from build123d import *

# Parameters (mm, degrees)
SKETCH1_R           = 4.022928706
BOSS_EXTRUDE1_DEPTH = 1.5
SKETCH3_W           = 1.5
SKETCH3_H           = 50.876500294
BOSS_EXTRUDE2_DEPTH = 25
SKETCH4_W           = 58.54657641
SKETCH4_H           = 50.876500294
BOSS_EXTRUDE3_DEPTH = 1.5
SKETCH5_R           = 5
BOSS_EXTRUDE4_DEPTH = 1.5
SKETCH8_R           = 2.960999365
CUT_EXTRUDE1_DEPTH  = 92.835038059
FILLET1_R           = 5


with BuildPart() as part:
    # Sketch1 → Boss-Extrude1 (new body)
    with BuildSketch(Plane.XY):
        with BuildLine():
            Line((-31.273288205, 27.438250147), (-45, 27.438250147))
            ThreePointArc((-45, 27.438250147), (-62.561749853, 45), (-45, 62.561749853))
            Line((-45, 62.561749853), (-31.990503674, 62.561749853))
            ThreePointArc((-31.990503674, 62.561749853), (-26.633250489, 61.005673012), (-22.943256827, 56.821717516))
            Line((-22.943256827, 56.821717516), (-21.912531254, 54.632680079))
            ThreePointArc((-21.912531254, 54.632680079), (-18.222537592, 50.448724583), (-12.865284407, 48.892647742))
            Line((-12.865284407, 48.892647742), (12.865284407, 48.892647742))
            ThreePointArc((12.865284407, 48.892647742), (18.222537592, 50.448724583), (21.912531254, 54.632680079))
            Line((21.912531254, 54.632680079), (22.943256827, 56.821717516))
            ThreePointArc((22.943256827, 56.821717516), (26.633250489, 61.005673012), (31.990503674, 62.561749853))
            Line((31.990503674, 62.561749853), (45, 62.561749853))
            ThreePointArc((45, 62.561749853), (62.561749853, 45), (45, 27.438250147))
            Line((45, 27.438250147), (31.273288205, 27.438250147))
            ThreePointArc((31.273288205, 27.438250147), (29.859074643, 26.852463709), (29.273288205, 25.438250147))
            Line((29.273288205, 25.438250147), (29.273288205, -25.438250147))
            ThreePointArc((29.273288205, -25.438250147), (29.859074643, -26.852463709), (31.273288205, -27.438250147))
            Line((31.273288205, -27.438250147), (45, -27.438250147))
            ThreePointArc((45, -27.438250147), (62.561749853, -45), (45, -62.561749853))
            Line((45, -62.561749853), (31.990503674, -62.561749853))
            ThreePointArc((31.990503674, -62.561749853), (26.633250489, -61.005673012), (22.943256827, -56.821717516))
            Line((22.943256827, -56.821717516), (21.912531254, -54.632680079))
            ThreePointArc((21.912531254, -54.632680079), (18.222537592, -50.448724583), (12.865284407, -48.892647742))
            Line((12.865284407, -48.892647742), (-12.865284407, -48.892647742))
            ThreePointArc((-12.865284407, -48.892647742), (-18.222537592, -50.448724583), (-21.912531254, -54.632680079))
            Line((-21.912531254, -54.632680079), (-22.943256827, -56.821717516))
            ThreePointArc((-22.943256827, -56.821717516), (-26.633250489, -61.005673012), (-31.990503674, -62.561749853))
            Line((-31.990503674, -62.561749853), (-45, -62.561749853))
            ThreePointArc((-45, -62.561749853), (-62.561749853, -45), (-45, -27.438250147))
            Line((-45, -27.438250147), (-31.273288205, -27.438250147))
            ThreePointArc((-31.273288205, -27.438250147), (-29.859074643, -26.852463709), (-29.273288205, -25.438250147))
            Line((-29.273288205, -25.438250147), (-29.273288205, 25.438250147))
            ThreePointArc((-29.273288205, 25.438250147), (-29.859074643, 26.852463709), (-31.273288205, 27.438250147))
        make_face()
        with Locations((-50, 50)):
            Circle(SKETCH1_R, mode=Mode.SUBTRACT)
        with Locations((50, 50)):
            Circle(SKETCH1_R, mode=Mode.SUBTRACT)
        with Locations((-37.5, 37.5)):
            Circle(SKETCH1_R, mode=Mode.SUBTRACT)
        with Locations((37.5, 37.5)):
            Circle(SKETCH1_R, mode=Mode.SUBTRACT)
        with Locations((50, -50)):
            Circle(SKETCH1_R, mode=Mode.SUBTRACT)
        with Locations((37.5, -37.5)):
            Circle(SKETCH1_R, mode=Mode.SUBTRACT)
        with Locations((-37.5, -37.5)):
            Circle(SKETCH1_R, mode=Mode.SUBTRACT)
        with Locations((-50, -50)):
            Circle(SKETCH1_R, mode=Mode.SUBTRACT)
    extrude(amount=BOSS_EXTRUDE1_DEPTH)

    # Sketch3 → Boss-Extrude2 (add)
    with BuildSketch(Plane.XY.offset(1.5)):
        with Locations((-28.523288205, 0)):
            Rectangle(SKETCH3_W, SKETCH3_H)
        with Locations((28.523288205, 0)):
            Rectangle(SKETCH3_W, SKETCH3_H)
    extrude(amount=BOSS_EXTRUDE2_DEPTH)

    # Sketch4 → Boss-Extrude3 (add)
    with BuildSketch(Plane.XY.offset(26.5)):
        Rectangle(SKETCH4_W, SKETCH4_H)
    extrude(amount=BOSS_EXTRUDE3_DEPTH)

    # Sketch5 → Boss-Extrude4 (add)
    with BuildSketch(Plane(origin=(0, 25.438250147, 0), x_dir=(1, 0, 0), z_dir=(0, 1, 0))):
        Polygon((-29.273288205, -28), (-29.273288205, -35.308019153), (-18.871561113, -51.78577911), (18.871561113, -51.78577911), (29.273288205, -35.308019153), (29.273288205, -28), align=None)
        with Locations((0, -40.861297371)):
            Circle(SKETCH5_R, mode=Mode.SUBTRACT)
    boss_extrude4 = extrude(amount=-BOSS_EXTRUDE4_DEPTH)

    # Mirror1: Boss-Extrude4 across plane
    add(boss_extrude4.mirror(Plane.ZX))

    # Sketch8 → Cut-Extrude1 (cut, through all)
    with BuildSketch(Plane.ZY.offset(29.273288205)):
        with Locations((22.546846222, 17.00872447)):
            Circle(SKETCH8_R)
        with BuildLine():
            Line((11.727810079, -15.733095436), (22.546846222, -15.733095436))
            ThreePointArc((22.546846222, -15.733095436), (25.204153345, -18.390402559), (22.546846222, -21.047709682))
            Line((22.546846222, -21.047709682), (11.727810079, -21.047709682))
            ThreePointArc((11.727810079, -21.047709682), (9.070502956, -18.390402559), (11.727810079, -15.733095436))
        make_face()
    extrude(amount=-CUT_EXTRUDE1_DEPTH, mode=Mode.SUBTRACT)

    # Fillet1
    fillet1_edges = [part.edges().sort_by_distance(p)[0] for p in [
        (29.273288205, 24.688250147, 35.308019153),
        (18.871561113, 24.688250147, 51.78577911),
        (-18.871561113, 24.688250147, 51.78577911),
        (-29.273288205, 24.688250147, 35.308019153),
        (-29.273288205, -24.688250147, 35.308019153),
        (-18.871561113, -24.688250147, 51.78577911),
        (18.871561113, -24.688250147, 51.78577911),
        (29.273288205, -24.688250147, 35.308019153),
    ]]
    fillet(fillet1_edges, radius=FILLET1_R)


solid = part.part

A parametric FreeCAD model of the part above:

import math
import FreeCAD as App
import Part
import Sketcher
from FreeCAD import Vector
Q = App.Units.Quantity


def edges_at(feature, points):
    """Names of the edges that pass closest to the given points."""
    edges = feature.Shape.Edges
    near = lambda p: min(range(len(edges)), key=lambda i: edges[i].distToShape(Part.Vertex(*p))[0])
    return sorted({f"Edge{near(p) + 1}" for p in points})


def add_polygon(sketch, points):
    """Adds a closed chain of lines whose ends are joined by coincident constraints."""
    first, n = sketch.GeometryCount, len(points)
    for a, b in zip(points, points[1:] + points[:1]):
        sketch.addGeometry(Part.LineSegment(App.Vector(*a, 0), App.Vector(*b, 0)), False)
    for i in range(n):
        sketch.addConstraint(Sketcher.Constraint("Coincident", first + i, 2, first + (i + 1) % n, 1))

doc = App.newDocument("Part")
body = doc.addObject("PartDesign::Body", "Body")

sketch1 = doc.addObject("Sketcher::SketchObject", "Sketch")
body.addObject(sketch1)
sketch1.AttachmentSupport = (doc.XY_Plane, [""])
sketch1.MapMode = "FlatFace"
sketch1.addGeometry(Part.LineSegment(Vector(-45, 27.4, 0), Vector(-31.3, 27.4, 0)), False)
sketch1.addGeometry(Part.ArcOfCircle(Part.Circle(Vector(-31.3, 25.4, 0), Vector(0, 0, 1), 2), math.radians(0), math.radians(90)), False)
sketch1.addGeometry(Part.LineSegment(Vector(-29.3, 25.4, 0), Vector(-29.3, -25.4, 0)), False)
sketch1.addGeometry(Part.ArcOfCircle(Part.Circle(Vector(-31.3, -25.4, 0), Vector(0, 0, 1), 2), math.radians(-90), math.radians(0)), False)
sketch1.addGeometry(Part.LineSegment(Vector(-31.3, -27.4, 0), Vector(-45, -27.4, 0)), False)
sketch1.addGeometry(Part.ArcOfCircle(Part.Circle(Vector(-45, -45, 0), Vector(0, 0, 1), 17.6), math.radians(90), math.radians(270)), False)
sketch1.addGeometry(Part.LineSegment(Vector(-45, -62.6, 0), Vector(-32, -62.6, 0)), False)
sketch1.addGeometry(Part.ArcOfCircle(Part.Circle(Vector(-32, -52.6, 0), Vector(0, 0, 1), 10), math.radians(-90), math.radians(-25)), False)
sketch1.addGeometry(Part.LineSegment(Vector(-22.9, -56.8, 0), Vector(-21.9, -54.6, 0)), False)
sketch1.addGeometry(Part.ArcOfCircle(Part.Circle(Vector(-12.9, -58.9, 0), Vector(0, 0, 1), 10), math.radians(90), math.radians(155)), False)
sketch1.addGeometry(Part.LineSegment(Vector(-12.9, -48.9, 0), Vector(12.9, -48.9, 0)), False)
sketch1.addGeometry(Part.ArcOfCircle(Part.Circle(Vector(12.9, -58.9, 0), Vector(0, 0, 1), 10), math.radians(25), math.radians(90)), False)
sketch1.addGeometry(Part.LineSegment(Vector(21.9, -54.6, 0), Vector(22.9, -56.8, 0)), False)
sketch1.addGeometry(Part.ArcOfCircle(Part.Circle(Vector(32, -52.6, 0), Vector(0, 0, 1), 10), math.radians(-155), math.radians(-90)), False)
sketch1.addGeometry(Part.LineSegment(Vector(32, -62.6, 0), Vector(45, -62.6, 0)), False)
sketch1.addGeometry(Part.ArcOfCircle(Part.Circle(Vector(45, -45, 0), Vector(0, 0, 1), 17.6), math.radians(-90), math.radians(90)), False)
sketch1.addGeometry(Part.LineSegment(Vector(45, -27.4, 0), Vector(31.3, -27.4, 0)), False)
sketch1.addGeometry(Part.ArcOfCircle(Part.Circle(Vector(31.3, -25.4, 0), Vector(0, 0, 1), 2), math.radians(-180), math.radians(-90)), False)
sketch1.addGeometry(Part.LineSegment(Vector(29.3, -25.4, 0), Vector(29.3, 25.4, 0)), False)
sketch1.addGeometry(Part.ArcOfCircle(Part.Circle(Vector(31.3, 25.4, 0), Vector(0, 0, 1), 2), math.radians(90), math.radians(180)), False)
sketch1.addGeometry(Part.LineSegment(Vector(31.3, 27.4, 0), Vector(45, 27.4, 0)), False)
sketch1.addGeometry(Part.ArcOfCircle(Part.Circle(Vector(45, 45, 0), Vector(0, 0, 1), 17.6), math.radians(-90), math.radians(90)), False)
sketch1.addGeometry(Part.LineSegment(Vector(45, 62.6, 0), Vector(32, 62.6, 0)), False)
sketch1.addGeometry(Part.ArcOfCircle(Part.Circle(Vector(32, 52.6, 0), Vector(0, 0, 1), 10), math.radians(90), math.radians(155)), False)
sketch1.addGeometry(Part.LineSegment(Vector(22.9, 56.8, 0), Vector(21.9, 54.6, 0)), False)
sketch1.addGeometry(Part.ArcOfCircle(Part.Circle(Vector(12.9, 58.9, 0), Vector(0, 0, 1), 10), math.radians(-90), math.radians(-25)), False)
sketch1.addGeometry(Part.LineSegment(Vector(12.9, 48.9, 0), Vector(-12.9, 48.9, 0)), False)
sketch1.addGeometry(Part.ArcOfCircle(Part.Circle(Vector(-12.9, 58.9, 0), Vector(0, 0, 1), 10), math.radians(-155), math.radians(-90)), False)
sketch1.addGeometry(Part.LineSegment(Vector(-21.9, 54.6, 0), Vector(-22.9, 56.8, 0)), False)
sketch1.addGeometry(Part.ArcOfCircle(Part.Circle(Vector(-32, 52.6, 0), Vector(0, 0, 1), 10), math.radians(25), math.radians(90)), False)
sketch1.addGeometry(Part.LineSegment(Vector(-32, 62.6, 0), Vector(-45, 62.6, 0)), False)
sketch1.addGeometry(Part.ArcOfCircle(Part.Circle(Vector(-45, 45, 0), Vector(0, 0, 1), 17.6), math.radians(90), math.radians(270)), False)
sketch1.addGeometry(Part.Circle(Vector(50, -50, 0), Vector(0, 0, 1), 4), False)
sketch1.addGeometry(Part.Circle(Vector(37.5, -37.5, 0), Vector(0, 0, 1), 4), False)
sketch1.addGeometry(Part.Circle(Vector(-50, -50, 0), Vector(0, 0, 1), 4), False)
sketch1.addGeometry(Part.Circle(Vector(-37.5, -37.5, 0), Vector(0, 0, 1), 4), False)
sketch1.addGeometry(Part.Circle(Vector(37.5, 37.5, 0), Vector(0, 0, 1), 4), False)
sketch1.addGeometry(Part.Circle(Vector(50, 50, 0), Vector(0, 0, 1), 4), False)
sketch1.addGeometry(Part.Circle(Vector(-37.5, 37.5, 0), Vector(0, 0, 1), 4), False)
sketch1.addGeometry(Part.Circle(Vector(-50, 50, 0), Vector(0, 0, 1), 4), False)
sketch1.addConstraint(Sketcher.Constraint("Tangent", 0, 2, 1, 2))
sketch1.addConstraint(Sketcher.Constraint("Tangent", 1, 1, 2, 1))
sketch1.addConstraint(Sketcher.Constraint("Tangent", 2, 2, 3, 2))
sketch1.addConstraint(Sketcher.Constraint("Tangent", 3, 1, 4, 1))
sketch1.addConstraint(Sketcher.Constraint("Tangent", 4, 2, 5, 1))
sketch1.addConstraint(Sketcher.Constraint("Tangent", 5, 2, 6, 1))
sketch1.addConstraint(Sketcher.Constraint("Tangent", 6, 2, 7, 1))
sketch1.addConstraint(Sketcher.Constraint("Tangent", 7, 2, 8, 1))
sketch1.addConstraint(Sketcher.Constraint("Tangent", 8, 2, 9, 2))
sketch1.addConstraint(Sketcher.Constraint("Tangent", 9, 1, 10, 1))
sketch1.addConstraint(Sketcher.Constraint("Tangent", 10, 2, 11, 2))
sketch1.addConstraint(Sketcher.Constraint("Tangent", 11, 1, 12, 1))
sketch1.addConstraint(Sketcher.Constraint("Tangent", 12, 2, 13, 1))
sketch1.addConstraint(Sketcher.Constraint("Tangent", 13, 2, 14, 1))
sketch1.addConstraint(Sketcher.Constraint("Tangent", 14, 2, 15, 1))
sketch1.addConstraint(Sketcher.Constraint("Tangent", 15, 2, 16, 1))
sketch1.addConstraint(Sketcher.Constraint("Tangent", 16, 2, 17, 2))
sketch1.addConstraint(Sketcher.Constraint("Tangent", 17, 1, 18, 1))
sketch1.addConstraint(Sketcher.Constraint("Tangent", 18, 2, 19, 2))
sketch1.addConstraint(Sketcher.Constraint("Tangent", 19, 1, 20, 1))
sketch1.addConstraint(Sketcher.Constraint("Tangent", 20, 2, 21, 1))
sketch1.addConstraint(Sketcher.Constraint("Tangent", 21, 2, 22, 1))
sketch1.addConstraint(Sketcher.Constraint("Tangent", 22, 2, 23, 1))
sketch1.addConstraint(Sketcher.Constraint("Tangent", 23, 2, 24, 1))
sketch1.addConstraint(Sketcher.Constraint("Tangent", 24, 2, 25, 2))
sketch1.addConstraint(Sketcher.Constraint("Tangent", 25, 1, 26, 1))
sketch1.addConstraint(Sketcher.Constraint("Tangent", 26, 2, 27, 2))
sketch1.addConstraint(Sketcher.Constraint("Tangent", 27, 1, 28, 1))
sketch1.addConstraint(Sketcher.Constraint("Tangent", 28, 2, 29, 1))
sketch1.addConstraint(Sketcher.Constraint("Tangent", 29, 2, 30, 1))
sketch1.addConstraint(Sketcher.Constraint("Tangent", 30, 2, 31, 1))
sketch1.addConstraint(Sketcher.Constraint("Tangent", 31, 2, 0, 1))
sketch1.addConstraint(Sketcher.Constraint("Horizontal", 0))
sketch1.addConstraint(Sketcher.Constraint("Vertical", 2))
sketch1.addConstraint(Sketcher.Constraint("Horizontal", 4))
sketch1.addConstraint(Sketcher.Constraint("Horizontal", 6))
sketch1.addConstraint(Sketcher.Constraint("Horizontal", 10))
sketch1.addConstraint(Sketcher.Constraint("Horizontal", 14))
sketch1.addConstraint(Sketcher.Constraint("Horizontal", 16))
sketch1.addConstraint(Sketcher.Constraint("Vertical", 18))
sketch1.addConstraint(Sketcher.Constraint("Horizontal", 20))
sketch1.addConstraint(Sketcher.Constraint("Horizontal", 22))
sketch1.addConstraint(Sketcher.Constraint("Horizontal", 26))
sketch1.addConstraint(Sketcher.Constraint("Horizontal", 30))
sketch1.addConstraint(Sketcher.Constraint("Equal", 1, 3))
sketch1.addConstraint(Sketcher.Constraint("Equal", 7, 9))
sketch1.addConstraint(Sketcher.Constraint("Equal", 9, 11))
sketch1.addConstraint(Sketcher.Constraint("Equal", 11, 13))
sketch1.addConstraint(Sketcher.Constraint("Equal", 5, 15))
sketch1.addConstraint(Sketcher.Constraint("Equal", 3, 17))
sketch1.addConstraint(Sketcher.Constraint("Equal", 17, 19))
sketch1.addConstraint(Sketcher.Constraint("Equal", 15, 21))
sketch1.addConstraint(Sketcher.Constraint("Equal", 13, 23))
sketch1.addConstraint(Sketcher.Constraint("Equal", 23, 25))
sketch1.addConstraint(Sketcher.Constraint("Equal", 25, 27))
sketch1.addConstraint(Sketcher.Constraint("Equal", 27, 29))
sketch1.addConstraint(Sketcher.Constraint("Equal", 21, 31))
sketch1.addConstraint(Sketcher.Constraint("Equal", 32, 33))
sketch1.addConstraint(Sketcher.Constraint("Equal", 33, 34))
sketch1.addConstraint(Sketcher.Constraint("Equal", 34, 35))
sketch1.addConstraint(Sketcher.Constraint("Equal", 35, 36))
sketch1.addConstraint(Sketcher.Constraint("Equal", 36, 37))
sketch1.addConstraint(Sketcher.Constraint("Equal", 37, 38))
sketch1.addConstraint(Sketcher.Constraint("Equal", 38, 39))
sketch1.addConstraint(Sketcher.Constraint("Symmetric", 1, 3, 17, 3, -1, 1))
sketch1.addConstraint(Sketcher.Constraint("Symmetric", 5, 3, 21, 3, -1, 1))
sketch1.addConstraint(Sketcher.Constraint("Symmetric", 9, 3, 25, 3, -1, 1))
sketch1.addConstraint(Sketcher.Constraint("Symmetric", 35, 3, 36, 3, -1, 1))
sketch1.addConstraint(Sketcher.Constraint("Symmetric", 34, 3, 37, 3, -1, 1))
sketch1.addConstraint(Sketcher.Constraint("Symmetric", 33, 3, 38, 3, -1, 1))
sketch1.addConstraint(Sketcher.Constraint("Symmetric", 32, 3, 39, 3, -1, 1))
sketch1.addConstraint(Sketcher.Constraint("Symmetric", 11, 1, 27, 1, -1, 1))
sketch1.addConstraint(Sketcher.Constraint("Symmetric", 7, 3, 13, 3, -2))
sketch1.addConstraint(Sketcher.Constraint("Symmetric", 32, 3, 34, 3, -2))
sketch1.addConstraint(Sketcher.Constraint("Symmetric", 33, 3, 35, 3, -2))
sketch1.addConstraint(Sketcher.Constraint("Symmetric", 24, 2, 27, 1, -2))
sketch1.addConstraint(Sketcher.Constraint("Vertical", 15, 3, 21, 3))
sketch1.addConstraint(Sketcher.Constraint("Vertical", 5, 3, 31, 3))
sketch1.addConstraint(Sketcher.Constraint("Radius", 1, Q("2 mm")))
sketch1.addConstraint(Sketcher.Constraint("Radius", 7, Q("10 mm")))
sketch1.addConstraint(Sketcher.Constraint("DistanceX", 5, 3, -1, 1, Q("45 mm")))
sketch1.addConstraint(Sketcher.Constraint("DistanceY", 5, 3, -1, 1, Q("45 mm")))
sketch1.addConstraint(Sketcher.Constraint("DistanceX", -1, 1, 32, 3, Q("50 mm")))
sketch1.addConstraint(Sketcher.Constraint("DistanceY", 32, 3, -1, 1, Q("50 mm")))
sketch1.addConstraint(Sketcher.Constraint("DistanceX", -1, 1, 33, 3, Q("37.5 mm")))
sketch1.addConstraint(Sketcher.Constraint("DistanceY", 33, 3, -1, 1, Q("37.5 mm")))
sketch1.addConstraint(Sketcher.Constraint("Radius", 5, Q("17.56175 mm")))
sketch1.addConstraint(Sketcher.Constraint("Diameter", 32, Q("8.045857 mm")))
sketch1.addConstraint(Sketcher.Constraint("DistanceX", 0, 1, 0, 2, Q("13.726712 mm")))
sketch1.addConstraint(Sketcher.Constraint("DistanceX", 10, 1, 10, 2, Q("25.730569 mm")))
sketch1.addConstraint(Sketcher.Constraint("Distance", 8, Q("2.419562 mm")))
sketch1.addConstraint(Sketcher.Constraint("DistanceX", 6, 1, 6, 2, Q("13.009496 mm")))
pad1 = doc.addObject("PartDesign::Pad", "Pad")
body.addObject(pad1)
pad1.Profile = sketch1
pad1.Length = 1.5

sketch2 = doc.addObject("Sketcher::SketchObject", "Sketch001")
body.addObject(sketch2)
sketch2.AttachmentSupport = (doc.XY_Plane, [""])
sketch2.MapMode = "FlatFace"
sketch2.AttachmentOffset = App.Placement(Vector(0, 0, 1.5), App.Rotation())
add_polygon(sketch2, [(-29.3, 25.4), (-29.3, -25.4), (-27.8, -25.4), (-27.8, 25.4)])
add_polygon(sketch2, [(27.8, 25.4), (27.8, -25.4), (29.3, -25.4), (29.3, 25.4)])
sketch2.addConstraint(Sketcher.Constraint("Vertical", 0))
sketch2.addConstraint(Sketcher.Constraint("Horizontal", 1))
sketch2.addConstraint(Sketcher.Constraint("Vertical", 2))
sketch2.addConstraint(Sketcher.Constraint("Horizontal", 3))
sketch2.addConstraint(Sketcher.Constraint("Vertical", 4))
sketch2.addConstraint(Sketcher.Constraint("Horizontal", 5))
sketch2.addConstraint(Sketcher.Constraint("Vertical", 6))
sketch2.addConstraint(Sketcher.Constraint("Horizontal", 7))
sketch2.addConstraint(Sketcher.Constraint("Symmetric", 2, 2, 4, 2, -1, 1))
sketch2.addConstraint(Sketcher.Constraint("Symmetric", 0, 2, 6, 2, -1, 1))
sketch2.addConstraint(Sketcher.Constraint("Horizontal", 1, 2, 4, 2))
sketch2.addConstraint(Sketcher.Constraint("DistanceX", 1, 1, 1, 2, Q("1.5 mm")))
sketch2.addConstraint(Sketcher.Constraint("DistanceY", 0, 2, 0, 1, Q("50.8765 mm")))
sketch2.addConstraint(Sketcher.Constraint("DistanceX", 0, 2, -1, 1, Q("29.273288 mm")))
pad2 = doc.addObject("PartDesign::Pad", "Pad001")
body.addObject(pad2)
pad2.Profile = sketch2
pad2.Length = 25

sketch3 = doc.addObject("Sketcher::SketchObject", "Sketch002")
body.addObject(sketch3)
sketch3.AttachmentSupport = (doc.XY_Plane, [""])
sketch3.MapMode = "FlatFace"
sketch3.AttachmentOffset = App.Placement(Vector(0, 0, 26.5), App.Rotation())
add_polygon(sketch3, [(-29, 25), (-29, -25), (29, -25), (29, 25)])
sketch3.addConstraint(Sketcher.Constraint("Vertical", 0))
sketch3.addConstraint(Sketcher.Constraint("Horizontal", 1))
sketch3.addConstraint(Sketcher.Constraint("Vertical", 2))
sketch3.addConstraint(Sketcher.Constraint("Horizontal", 3))
sketch3.addConstraint(Sketcher.Constraint("Symmetric", 0, 2, 2, 2, -1, 1))
sketch3.addConstraint(Sketcher.Constraint("DistanceY", 0, 2, 0, 1, Q("50.8765 mm")))
sketch3.addConstraint(Sketcher.Constraint("DistanceX", 1, 1, 1, 2, Q("58.546576 mm")))
pad3 = doc.addObject("PartDesign::Pad", "Pad002")
body.addObject(pad3)
pad3.Profile = sketch3
pad3.Length = 1.5

sketch4 = doc.addObject("Sketcher::SketchObject", "Sketch003")
body.addObject(sketch4)
sketch4.AttachmentSupport = (doc.XZ_Plane, [""])
sketch4.MapMode = "FlatFace"
sketch4.AttachmentOffset = App.Placement(Vector(0, 0, -25.43825), App.Rotation())
add_polygon(sketch4, [(-29, 28), (-29, 35), (-19, 52), (19, 52), (29, 35), (29, 28)])
sketch4.addGeometry(Part.Circle(Vector(0, 41, 0), Vector(0, 0, 1), 5), False)
sketch4.addConstraint(Sketcher.Constraint("Vertical", 0))
sketch4.addConstraint(Sketcher.Constraint("Horizontal", 2))
sketch4.addConstraint(Sketcher.Constraint("Vertical", 4))
sketch4.addConstraint(Sketcher.Constraint("Horizontal", 5))
sketch4.addConstraint(Sketcher.Constraint("Symmetric", 0, 2, 3, 2, -2))
sketch4.addConstraint(Sketcher.Constraint("PointOnObject", 6, 3, -2))
sketch4.addConstraint(Sketcher.Constraint("Equal", 1, 3))
sketch4.addConstraint(Sketcher.Constraint("Diameter", 6, Q("10 mm")))
sketch4.addConstraint(Sketcher.Constraint("DistanceY", -1, 1, 4, 2, Q("28 mm")))
sketch4.addConstraint(Sketcher.Constraint("DistanceY", 0, 1, 0, 2, Q("7.308019 mm")))
sketch4.addConstraint(Sketcher.Constraint("DistanceX", 2, 1, 2, 2, Q("37.743122 mm")))
sketch4.addConstraint(Sketcher.Constraint("DistanceX", 5, 2, 5, 1, Q("58.546576 mm")))
sketch4.addConstraint(Sketcher.Constraint("DistanceY", -1, 1, 1, 2, Q("51.785779 mm")))
sketch4.addConstraint(Sketcher.Constraint("DistanceY", 0, 2, 6, 3, Q("5.553278 mm")))
pad4 = doc.addObject("PartDesign::Pad", "Pad003")
body.addObject(pad4)
pad4.Profile = sketch4
pad4.Length = 1.5
doc.recompute()

mirrored = doc.addObject("PartDesign::Mirrored", "Mirrored")
body.addObject(mirrored)
mirrored.Originals = [pad4]
mirrored.MirrorPlane = (doc.XZ_Plane, [""])
body.Tip = mirrored

sketch5 = doc.addObject("Sketcher::SketchObject", "Sketch004")
body.addObject(sketch5)
sketch5.AttachmentSupport = (doc.YZ_Plane, [""])
sketch5.MapMode = "FlatFace"
sketch5.AttachmentOffset = App.Placement(Vector(0, 0, -29.273288), App.Rotation())
sketch5.addGeometry(Part.Circle(Vector(17, 22.5, 0), Vector(0, 0, 1), 3), False)
sketch5.addGeometry(Part.LineSegment(Vector(-15.7, 22.5, 0), Vector(-15.7, 11.7, 0)), False)
sketch5.addGeometry(Part.ArcOfCircle(Part.Circle(Vector(-18.4, 11.7, 0), Vector(0, 0, 1), 2.7), math.radians(180), math.radians(360)), False)
sketch5.addGeometry(Part.LineSegment(Vector(-21, 11.7, 0), Vector(-21, 22.5, 0)), False)
sketch5.addGeometry(Part.ArcOfCircle(Part.Circle(Vector(-18.4, 22.5, 0), Vector(0, 0, 1), 2.7), math.radians(0), math.radians(180)), False)
sketch5.addConstraint(Sketcher.Constraint("Tangent", 1, 2, 2, 2))
sketch5.addConstraint(Sketcher.Constraint("Tangent", 2, 1, 3, 1))
sketch5.addConstraint(Sketcher.Constraint("Tangent", 3, 2, 4, 2))
sketch5.addConstraint(Sketcher.Constraint("Tangent", 4, 1, 1, 1))
sketch5.addConstraint(Sketcher.Constraint("Vertical", 1))
sketch5.addConstraint(Sketcher.Constraint("Vertical", 3))
sketch5.addConstraint(Sketcher.Constraint("Horizontal", 0, 3, 4, 3))
sketch5.addConstraint(Sketcher.Constraint("Diameter", 0, Q("5.921999 mm")))
sketch5.addConstraint(Sketcher.Constraint("Radius", 2, Q("2.657307 mm")))
sketch5.addConstraint(Sketcher.Constraint("DistanceY", 1, 2, 1, 1, Q("10.819036 mm")))
sketch5.addConstraint(Sketcher.Constraint("DistanceY", -1, 1, 2, 3, Q("11.72781 mm")))
sketch5.addConstraint(Sketcher.Constraint("DistanceX", 2, 1, -1, 1, Q("21.04771 mm")))
sketch5.addConstraint(Sketcher.Constraint("DistanceX", 1, 2, 0, 3, Q("32.74182 mm")))
pocket1 = doc.addObject("PartDesign::Pocket", "Pocket")
body.addObject(pocket1)
pocket1.Profile = sketch5
pocket1.Type = "ThroughAll"
pocket1.Reversed = True
doc.recompute()

fillet = doc.addObject("PartDesign::Fillet", "Fillet")
body.addObject(fillet)
fillet.Base = (pocket1, edges_at(pocket1, [
    (29.273, 24.688, 35.308),
    (18.872, 24.688, 51.786),
    (-18.872, 24.688, 51.786),
    (-29.273, 24.688, 35.308),
    (-29.273, -24.688, 35.308),
    (-18.872, -24.688, 51.786),
    (18.872, -24.688, 51.786),
    (29.273, -24.688, 35.308),
]))
fillet.Radius = 5

doc.recompute()
